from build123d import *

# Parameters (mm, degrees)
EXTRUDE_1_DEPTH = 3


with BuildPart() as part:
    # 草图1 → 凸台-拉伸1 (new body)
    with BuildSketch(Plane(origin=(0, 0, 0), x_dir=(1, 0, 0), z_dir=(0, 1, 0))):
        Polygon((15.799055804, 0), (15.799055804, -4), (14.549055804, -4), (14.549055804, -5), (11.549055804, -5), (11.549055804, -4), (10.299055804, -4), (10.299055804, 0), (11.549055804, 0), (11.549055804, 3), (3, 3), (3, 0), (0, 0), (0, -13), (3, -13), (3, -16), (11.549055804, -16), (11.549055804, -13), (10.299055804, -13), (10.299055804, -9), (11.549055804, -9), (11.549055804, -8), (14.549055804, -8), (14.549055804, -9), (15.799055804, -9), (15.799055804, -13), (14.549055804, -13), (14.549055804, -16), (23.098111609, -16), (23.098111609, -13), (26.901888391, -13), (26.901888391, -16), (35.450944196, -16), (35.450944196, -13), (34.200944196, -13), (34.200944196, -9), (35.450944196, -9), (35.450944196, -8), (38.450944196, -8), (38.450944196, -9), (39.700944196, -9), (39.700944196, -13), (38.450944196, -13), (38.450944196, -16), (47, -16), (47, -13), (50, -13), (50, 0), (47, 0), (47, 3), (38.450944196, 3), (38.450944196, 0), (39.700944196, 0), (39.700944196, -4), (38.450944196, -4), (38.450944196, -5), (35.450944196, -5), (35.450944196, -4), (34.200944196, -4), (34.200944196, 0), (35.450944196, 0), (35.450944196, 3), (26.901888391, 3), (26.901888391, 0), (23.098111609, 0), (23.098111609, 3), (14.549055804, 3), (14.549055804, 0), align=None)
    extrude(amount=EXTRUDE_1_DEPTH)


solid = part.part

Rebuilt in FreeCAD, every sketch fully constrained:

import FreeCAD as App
import Part
import Sketcher
Q = App.Units.Quantity

doc = App.newDocument("Part")
body = doc.addObject("PartDesign::Body", "Body")

sketch1 = body.newObject("Sketcher::SketchObject", "Sketch")
sketch1.AttachmentSupport = (doc.getObject("XZ_Plane"), [""])
sketch1.MapMode = "FlatFace"
sketch1.addGeometry([
    Part.LineSegment(App.Vector(15.799056, 0, 0), App.Vector(15.799056, 4, 0)),
    Part.LineSegment(App.Vector(15.799056, 4, 0), App.Vector(14.549056, 4, 0)),
    Part.LineSegment(App.Vector(14.549056, 4, 0), App.Vector(14.549056, 5, 0)),
    Part.LineSegment(App.Vector(14.549056, 5, 0), App.Vector(11.549056, 5, 0)),
    Part.LineSegment(App.Vector(11.549056, 5, 0), App.Vector(11.549056, 4, 0)),
    Part.LineSegment(App.Vector(11.549056, 4, 0), App.Vector(10.299056, 4, 0)),
    Part.LineSegment(App.Vector(10.299056, 4, 0), App.Vector(10.299056, 0, 0)),
    Part.LineSegment(App.Vector(10.299056, 0, 0), App.Vector(11.549056, 0, 0)),
    Part.LineSegment(App.Vector(11.549056, 0, 0), App.Vector(11.549056, -3, 0)),
    Part.LineSegment(App.Vector(11.549056, -3, 0), App.Vector(3, -3, 0)),
    Part.LineSegment(App.Vector(3, -3, 0), App.Vector(3, 0, 0)),
    Part.LineSegment(App.Vector(3, 0, 0), App.Vector(0, 0, 0)),
    Part.LineSegment(App.Vector(0, 0, 0), App.Vector(0, 13, 0)),
    Part.LineSegment(App.Vector(0, 13, 0), App.Vector(3, 13, 0)),
    Part.LineSegment(App.Vector(3, 13, 0), App.Vector(3, 16, 0)),
    Part.LineSegment(App.Vector(3, 16, 0), App.Vector(11.549056, 16, 0)),
    Part.LineSegment(App.Vector(11.549056, 16, 0), App.Vector(11.549056, 13, 0)),
    Part.LineSegment(App.Vector(11.549056, 13, 0), App.Vector(10.299056, 13, 0)),
    Part.LineSegment(App.Vector(10.299056, 13, 0), App.Vector(10.299056, 9, 0)),
    Part.LineSegment(App.Vector(10.299056, 9, 0), App.Vector(11.549056, 9, 0)),
    Part.LineSegment(App.Vector(11.549056, 9, 0), App.Vector(11.549056, 8, 0)),
    Part.LineSegment(App.Vector(11.549056, 8, 0), App.Vector(14.549056, 8, 0)),
    Part.LineSegment(App.Vector(14.549056, 8, 0), App.Vector(14.549056, 9, 0)),
    Part.LineSegment(App.Vector(14.549056, 9, 0), App.Vector(15.799056, 9, 0)),
    Part.LineSegment(App.Vector(15.799056, 9, 0), App.Vector(15.799056, 13, 0)),
    Part.LineSegment(App.Vector(15.799056, 13, 0), App.Vector(14.549056, 13, 0)),
    Part.LineSegment(App.Vector(14.549056, 13, 0), App.Vector(14.549056, 16, 0)),
    Part.LineSegment(App.Vector(14.549056, 16, 0), App.Vector(23.098112, 16, 0)),
    Part.LineSegment(App.Vector(23.098112, 16, 0), App.Vector(23.098112, 13, 0)),
    Part.LineSegment(App.Vector(23.098112, 13, 0), App.Vector(26.901888, 13, 0)),
    Part.LineSegment(App.Vector(26.901888, 13, 0), App.Vector(26.901888, 16, 0)),
    Part.LineSegment(App.Vector(26.901888, 16, 0), App.Vector(35.450944, 16, 0)),
    Part.LineSegment(App.Vector(35.450944, 16, 0), App.Vector(35.450944, 13, 0)),
    Part.LineSegment(App.Vector(35.450944, 13, 0), App.Vector(34.200944, 13, 0)),
    Part.LineSegment(App.Vector(34.200944, 13, 0), App.Vector(34.200944, 9, 0)),
    Part.LineSegment(App.Vector(34.200944, 9, 0), App.Vector(35.450944, 9, 0)),
    Part.LineSegment(App.Vector(35.450944, 9, 0), App.Vector(35.450944, 8, 0)),
    Part.LineSegment(App.Vector(35.450944, 8, 0), App.Vector(38.450944, 8, 0)),
    Part.LineSegment(App.Vector(38.450944, 8, 0), App.Vector(38.450944, 9, 0)),
    Part.LineSegment(App.Vector(38.450944, 9, 0), App.Vector(39.700944, 9, 0)),
    Part.LineSegment(App.Vector(39.700944, 9, 0), App.Vector(39.700944, 13, 0)),
    Part.LineSegment(App.Vector(39.700944, 13, 0), App.Vector(38.450944, 13, 0)),
    Part.LineSegment(App.Vector(38.450944, 13, 0), App.Vector(38.450944, 16, 0)),
    Part.LineSegment(App.Vector(38.450944, 16, 0), App.Vector(47, 16, 0)),
    Part.LineSegment(App.Vector(47, 16, 0), App.Vector(47, 13, 0)),
    Part.LineSegment(App.Vector(47, 13, 0), App.Vector(50, 13, 0)),
    Part.LineSegment(App.Vector(50, 13, 0), App.Vector(50, 0, 0)),
    Part.LineSegment(App.Vector(50, 0, 0), App.Vector(47, 0, 0)),
    Part.LineSegment(App.Vector(47, 0, 0), App.Vector(47, -3, 0)),
    Part.LineSegment(App.Vector(47, -3, 0), App.Vector(38.450944, -3, 0)),
    Part.LineSegment(App.Vector(38.450944, -3, 0), App.Vector(38.450944, 0, 0)),
    Part.LineSegment(App.Vector(38.450944, 0, 0), App.Vector(39.700944, 0, 0)),
    Part.LineSegment(App.Vector(39.700944, 0, 0), App.Vector(39.700944, 4, 0)),
    Part.LineSegment(App.Vector(39.700944, 4, 0), App.Vector(38.450944, 4, 0)),
    Part.LineSegment(App.Vector(38.450944, 4, 0), App.Vector(38.450944, 5, 0)),
    Part.LineSegment(App.Vector(38.450944, 5, 0), App.Vector(35.450944, 5, 0)),
    Part.LineSegment(App.Vector(35.450944, 5, 0), App.Vector(35.450944, 4, 0)),
    Part.LineSegment(App.Vector(35.450944, 4, 0), App.Vector(34.200944, 4, 0)),
    Part.LineSegment(App.Vector(34.200944, 4, 0), App.Vector(34.200944, 0, 0)),
    Part.LineSegment(App.Vector(34.200944, 0, 0), App.Vector(35.450944, 0, 0)),
    Part.LineSegment(App.Vector(35.450944, 0, 0), App.Vector(35.450944, -3, 0)),
    Part.LineSegment(App.Vector(35.450944, -3, 0), App.Vector(26.901888, -3, 0)),
    Part.LineSegment(App.Vector(26.901888, -3, 0), App.Vector(26.901888, 0, 0)),
    Part.LineSegment(App.Vector(26.901888, 0, 0), App.Vector(23.098112, 0, 0)),
    Part.LineSegment(App.Vector(23.098112, 0, 0), App.Vector(23.098112, -3, 0)),
    Part.LineSegment(App.Vector(23.098112, -3, 0), App.Vector(14.549056, -3, 0)),
    Part.LineSegment(App.Vector(14.549056, -3, 0), App.Vector(14.549056, 0, 0)),
    Part.LineSegment(App.Vector(14.549056, 0, 0), App.Vector(15.799056, 0, 0)),
], False)
sketch1.addConstraint([
    Sketcher.Constraint("Coincident", 0, 2, 1, 1),
    Sketcher.Constraint("Coincident", 1, 2, 2, 1),
    Sketcher.Constraint("Coincident", 2, 2, 3, 1),
    Sketcher.Constraint("Coincident", 3, 2, 4, 1),
    Sketcher.Constraint("Coincident", 4, 2, 5, 1),
    Sketcher.Constraint("Coincident", 5, 2, 6, 1),
    Sketcher.Constraint("Coincident", 6, 2, 7, 1),
    Sketcher.Constraint("Coincident", 7, 2, 8, 1),
    Sketcher.Constraint("Coincident", 8, 2, 9, 1),
    Sketcher.Constraint("Coincident", 9, 2, 10, 1),
    Sketcher.Constraint("Coincident", 10, 2, 11, 1),
    Sketcher.Constraint("Coincident", 11, 2, 12, 1),
    Sketcher.Constraint("Coincident", 12, 2, 13, 1),
    Sketcher.Constraint("Coincident", 13, 2, 14, 1),
    Sketcher.Constraint("Coincident", 14, 2, 15, 1),
    Sketcher.Constraint("Coincident", 15, 2, 16, 1),
    Sketcher.Constraint("Coincident", 16, 2, 17, 1),
    Sketcher.Constraint("Coincident", 17, 2, 18, 1),
    Sketcher.Constraint("Coincident", 18, 2, 19, 1),
    Sketcher.Constraint("Coincident", 19, 2, 20, 1),
    Sketcher.Constraint("Coincident", 20, 2, 21, 1),
    Sketcher.Constraint("Coincident", 21, 2, 22, 1),
    Sketcher.Constraint("Coincident", 22, 2, 23, 1),
    Sketcher.Constraint("Coincident", 23, 2, 24, 1),
    Sketcher.Constraint("Coincident", 24, 2, 25, 1),
    Sketcher.Constraint("Coincident", 25, 2, 26, 1),
    Sketcher.Constraint("Coincident", 26, 2, 27, 1),
    Sketcher.Constraint("Coincident", 27, 2, 28, 1),
    Sketcher.Constraint("Coincident", 28, 2, 29, 1),
    Sketcher.Constraint("Coincident", 29, 2, 30, 1),
    Sketcher.Constraint("Coincident", 30, 2, 31, 1),
    Sketcher.Constraint("Coincident", 31, 2, 32, 1),
    Sketcher.Constraint("Coincident", 32, 2, 33, 1),
    Sketcher.Constraint("Coincident", 33, 2, 34, 1),
    Sketcher.Constraint("Coincident", 34, 2, 35, 1),
    Sketcher.Constraint("Coincident", 35, 2, 36, 1),
    Sketcher.Constraint("Coincident", 36, 2, 37, 1),
    Sketcher.Constraint("Coincident", 37, 2, 38, 1),
    Sketcher.Constraint("Coincident", 38, 2, 39, 1),
    Sketcher.Constraint("Coincident", 39, 2, 40, 1),
    Sketcher.Constraint("Coincident", 40, 2, 41, 1),
    Sketcher.Constraint("Coincident", 41, 2, 42, 1),
    Sketcher.Constraint("Coincident", 42, 2, 43, 1),
    Sketcher.Constraint("Coincident", 43, 2, 44, 1),
    Sketcher.Constraint("Coincident", 44, 2, 45, 1),
    Sketcher.Constraint("Coincident", 45, 2, 46, 1),
    Sketcher.Constraint("Coincident", 46, 2, 47, 1),
    Sketcher.Constraint("Coincident", 47, 2, 48, 1),
    Sketcher.Constraint("Coincident", 48, 2, 49, 1),
    Sketcher.Constraint("Coincident", 49, 2, 50, 1),
    Sketcher.Constraint("Coincident", 50, 2, 51, 1),
    Sketcher.Constraint("Coincident", 51, 2, 52, 1),
    Sketcher.Constraint("Coincident", 52, 2, 53, 1),
    Sketcher.Constraint("Coincident", 53, 2, 54, 1),
    Sketcher.Constraint("Coincident", 54, 2, 55, 1),
    Sketcher.Constraint("Coincident", 55, 2, 56, 1),
    Sketcher.Constraint("Coincident", 56, 2, 57, 1),
    Sketcher.Constraint("Coincident", 57, 2, 58, 1),
    Sketcher.Constraint("Coincident", 58, 2, 59, 1),
    Sketcher.Constraint("Coincident", 59, 2, 60, 1),
    Sketcher.Constraint("Coincident", 60, 2, 61, 1),
    Sketcher.Constraint("Coincident", 61, 2, 62, 1),
    Sketcher.Constraint("Coincident", 62, 2, 63, 1),
    Sketcher.Constraint("Coincident", 63, 2, 64, 1),
    Sketcher.Constraint("Coincident", 64, 2, 65, 1),
    Sketcher.Constraint("Coincident", 65, 2, 66, 1),
    Sketcher.Constraint("Coincident", 66, 2, 67, 1),
    Sketcher.Constraint("Coincident", 67, 2, 0, 1),
    Sketcher.Constraint("Vertical", 0),
    Sketcher.Constraint("Horizontal", 1),
    Sketcher.Constraint("Vertical", 2),
    Sketcher.Constraint("Horizontal", 3),
    Sketcher.Constraint("Vertical", 4),
    Sketcher.Constraint("Horizontal", 5),
    Sketcher.Constraint("Vertical", 6),
    Sketcher.Constraint("Horizontal", 7),
    Sketcher.Constraint("Vertical", 8),
    Sketcher.Constraint("Horizontal", 9),
    Sketcher.Constraint("Vertical", 10),
    Sketcher.Constraint("Horizontal", 11),
    Sketcher.Constraint("Vertical", 12),
    Sketcher.Constraint("Horizontal", 13),
    Sketcher.Constraint("Vertical", 14),
    Sketcher.Constraint("Horizontal", 15),
    Sketcher.Constraint("Vertical", 16),
    Sketcher.Constraint("Horizontal", 17),
    Sketcher.Constraint("Vertical", 18),
    Sketcher.Constraint("Horizontal", 19),
    Sketcher.Constraint("Vertical", 20),
    Sketcher.Constraint("Horizontal", 21),
    Sketcher.Constraint("Vertical", 22),
    Sketcher.Constraint("Horizontal", 23),
    Sketcher.Constraint("Vertical", 24),
    Sketcher.Constraint("Horizontal", 25),
    Sketcher.Constraint("Vertical", 26),
    Sketcher.Constraint("Horizontal", 27),
    Sketcher.Constraint("Vertical", 28),
    Sketcher.Constraint("Horizontal", 29),
    Sketcher.Constraint("Vertical", 30),
    Sketcher.Constraint("Horizontal", 31),
    Sketcher.Constraint("Vertical", 32),
    Sketcher.Constraint("Horizontal", 33),
    Sketcher.Constraint("Vertical", 34),
    Sketcher.Constraint("Horizontal", 35),
    Sketcher.Constraint("Vertical", 36),
    Sketcher.Constraint("Horizontal", 37),
    Sketcher.Constraint("Vertical", 38),
    Sketcher.Constraint("Horizontal", 39),
    Sketcher.Constraint("Vertical", 40),
    Sketcher.Constraint("Horizontal", 41),
    Sketcher.Constraint("Vertical", 42),
    Sketcher.Constraint("Horizontal", 43),
    Sketcher.Constraint("Vertical", 44),
    Sketcher.Constraint("Horizontal", 45),
    Sketcher.Constraint("Vertical", 46),
    Sketcher.Constraint("Horizontal", 47),
    Sketcher.Constraint("Vertical", 48),
    Sketcher.Constraint("Horizontal", 49),
    Sketcher.Constraint("Vertical", 50),
    Sketcher.Constraint("Horizontal", 51),
    Sketcher.Constraint("Vertical", 52),
    Sketcher.Constraint("Horizontal", 53),
    Sketcher.Constraint("Vertical", 54),
    Sketcher.Constraint("Horizontal", 55),
    Sketcher.Constraint("Vertical", 56),
    Sketcher.Constraint("Horizontal", 57),
    Sketcher.Constraint("Vertical", 58),
    Sketcher.Constraint("Horizontal", 59),
    Sketcher.Constraint("Vertical", 60),
    Sketcher.Constraint("Horizontal", 61),
    Sketcher.Constraint("Vertical", 62),
    Sketcher.Constraint("Horizontal", 63),
    Sketcher.Constraint("Vertical", 64),
    Sketcher.Constraint("Horizontal", 65),
    Sketcher.Constraint("Vertical", 66),
    Sketcher.Constraint("Horizontal", 67),
    Sketcher.Constraint("Coincident", 11, 2, -1, 1),
    Sketcher.Constraint("PointOnObject", 6, 2, -1),
    Sketcher.Constraint("PointOnObject", 46, 2, -1),
    Sketcher.Constraint("PointOnObject", 50, 2, -1),
    Sketcher.Constraint("PointOnObject", 58, 2, -1),
    Sketcher.Constraint("PointOnObject", 62, 2, -1),
    Sketcher.Constraint("PointOnObject", 66, 2, -1),
    Sketcher.Constraint("Horizontal", 1, 2, 4, 2),
    Sketcher.Constraint("Horizontal", 13, 2, 16, 2),
    Sketcher.Constraint("Horizontal", 19, 2, 22, 2),
    Sketcher.Constraint("Horizontal", 17, 2, 24, 2),
    Sketcher.Constraint("Horizontal", 15, 2, 26, 2),
    Sketcher.Constraint("Horizontal", 25, 2, 28, 2),
    Sketcher.Constraint("Horizontal", 27, 2, 30, 2),
    Sketcher.Constraint("Horizontal", 29, 2, 32, 2),
    Sketcher.Constraint("Horizontal", 23, 2, 34, 2),
    Sketcher.Constraint("Horizontal", 21, 2, 36, 2),
    Sketcher.Constraint("Horizontal", 35, 2, 38, 2),
    Sketcher.Constraint("Horizontal", 33, 2, 40, 2),
    Sketcher.Constraint("Horizontal", 31, 2, 42, 2),
    Sketcher.Constraint("Horizontal", 41, 2, 44, 2),
    Sketcher.Constraint("Horizontal", 9, 2, 48, 2),
    Sketcher.Constraint("Horizontal", 5, 2, 52, 2),
    Sketcher.Constraint("Horizontal", 3, 2, 54, 2),
    Sketcher.Constraint("Horizontal", 53, 2, 56, 2),
    Sketcher.Constraint("Horizontal", 49, 2, 60, 2),
    Sketcher.Constraint("Horizontal", 61, 2, 64, 2),
    Sketcher.Constraint("Vertical", 4, 2, 7, 2),
    Sketcher.Constraint("Vertical", 10, 2, 13, 2),
    Sketcher.Constraint("Vertical", 8, 2, 15, 2),
    Sketcher.Constraint("Vertical", 6, 2, 17, 2),
    Sketcher.Constraint("Vertical", 16, 2, 19, 2),
    Sketcher.Constraint("Vertical", 2, 2, 21, 2),
    Sketcher.Constraint("Vertical", 0, 2, 23, 2),
    Sketcher.Constraint("Vertical", 22, 2, 25, 2),
    Sketcher.Constraint("Vertical", 32, 2, 35, 2),
    Sketcher.Constraint("Vertical", 38, 2, 41, 2),
    Sketcher.Constraint("Vertical", 44, 2, 47, 2),
    Sketcher.Constraint("Vertical", 42, 2, 49, 2),
    Sketcher.Constraint("Vertical", 40, 2, 51, 2),
    Sketcher.Constraint("Vertical", 50, 2, 53, 2),
    Sketcher.Constraint("Vertical", 36, 2, 55, 2),
    Sketcher.Constraint("Vertical", 34, 2, 57, 2),
    Sketcher.Constraint("Vertical", 56, 2, 59, 2),
    Sketcher.Constraint("Vertical", 30, 2, 61, 2),
    Sketcher.Constraint("Vertical", 28, 2, 63, 2),
    Sketcher.Constraint("Vertical", 26, 2, 65, 2),
    Sketcher.Constraint("Equal", 1, 5),
    Sketcher.Constraint("Equal", 3, 11),
    Sketcher.Constraint("Equal", 15, 27),
    Sketcher.Constraint("Equal", 27, 31),
    Sketcher.Constraint("Equal", 25, 33),
    Sketcher.Constraint("Equal", 21, 37),
    Sketcher.Constraint("Equal", 35, 39),
    Sketcher.Constraint("Equal", 31, 43),
    Sketcher.Constraint("Equal", 37, 45),
    Sketcher.Constraint("Equal", 55, 8),
    Sketcher.Constraint("Equal", 10, 14),
    Sketcher.Constraint("Equal", 6, 18),
    Sketcher.Constraint("Equal", 4, 20),
    Sketcher.Constraint("DistanceX", 3, 2, 3, 1, Q("3 mm")),
    Sketcher.Constraint("DistanceY", 0, 1, 0, 2, Q("4 mm")),
    Sketcher.Constraint("DistanceY", 2, 1, 2, 2, Q("1 mm")),
    Sketcher.Constraint("DistanceY", 12, 1, 12, 2, Q("13 mm")),
    Sketcher.Constraint("DistanceX", -1, 1, 43, 2, Q("47 mm")),
    Sketcher.Constraint("DistanceX", 1, 2, 1, 1, Q("1.25 mm")),
    Sketcher.Constraint("DistanceX", 9, 2, 9, 1, Q("8.549056 mm")),
])
pad1 = body.newObject("PartDesign::Pad", "Pad")
pad1.Profile = sketch1
pad1.Length = 3
pad1.Reversed = True

doc.recompute()
